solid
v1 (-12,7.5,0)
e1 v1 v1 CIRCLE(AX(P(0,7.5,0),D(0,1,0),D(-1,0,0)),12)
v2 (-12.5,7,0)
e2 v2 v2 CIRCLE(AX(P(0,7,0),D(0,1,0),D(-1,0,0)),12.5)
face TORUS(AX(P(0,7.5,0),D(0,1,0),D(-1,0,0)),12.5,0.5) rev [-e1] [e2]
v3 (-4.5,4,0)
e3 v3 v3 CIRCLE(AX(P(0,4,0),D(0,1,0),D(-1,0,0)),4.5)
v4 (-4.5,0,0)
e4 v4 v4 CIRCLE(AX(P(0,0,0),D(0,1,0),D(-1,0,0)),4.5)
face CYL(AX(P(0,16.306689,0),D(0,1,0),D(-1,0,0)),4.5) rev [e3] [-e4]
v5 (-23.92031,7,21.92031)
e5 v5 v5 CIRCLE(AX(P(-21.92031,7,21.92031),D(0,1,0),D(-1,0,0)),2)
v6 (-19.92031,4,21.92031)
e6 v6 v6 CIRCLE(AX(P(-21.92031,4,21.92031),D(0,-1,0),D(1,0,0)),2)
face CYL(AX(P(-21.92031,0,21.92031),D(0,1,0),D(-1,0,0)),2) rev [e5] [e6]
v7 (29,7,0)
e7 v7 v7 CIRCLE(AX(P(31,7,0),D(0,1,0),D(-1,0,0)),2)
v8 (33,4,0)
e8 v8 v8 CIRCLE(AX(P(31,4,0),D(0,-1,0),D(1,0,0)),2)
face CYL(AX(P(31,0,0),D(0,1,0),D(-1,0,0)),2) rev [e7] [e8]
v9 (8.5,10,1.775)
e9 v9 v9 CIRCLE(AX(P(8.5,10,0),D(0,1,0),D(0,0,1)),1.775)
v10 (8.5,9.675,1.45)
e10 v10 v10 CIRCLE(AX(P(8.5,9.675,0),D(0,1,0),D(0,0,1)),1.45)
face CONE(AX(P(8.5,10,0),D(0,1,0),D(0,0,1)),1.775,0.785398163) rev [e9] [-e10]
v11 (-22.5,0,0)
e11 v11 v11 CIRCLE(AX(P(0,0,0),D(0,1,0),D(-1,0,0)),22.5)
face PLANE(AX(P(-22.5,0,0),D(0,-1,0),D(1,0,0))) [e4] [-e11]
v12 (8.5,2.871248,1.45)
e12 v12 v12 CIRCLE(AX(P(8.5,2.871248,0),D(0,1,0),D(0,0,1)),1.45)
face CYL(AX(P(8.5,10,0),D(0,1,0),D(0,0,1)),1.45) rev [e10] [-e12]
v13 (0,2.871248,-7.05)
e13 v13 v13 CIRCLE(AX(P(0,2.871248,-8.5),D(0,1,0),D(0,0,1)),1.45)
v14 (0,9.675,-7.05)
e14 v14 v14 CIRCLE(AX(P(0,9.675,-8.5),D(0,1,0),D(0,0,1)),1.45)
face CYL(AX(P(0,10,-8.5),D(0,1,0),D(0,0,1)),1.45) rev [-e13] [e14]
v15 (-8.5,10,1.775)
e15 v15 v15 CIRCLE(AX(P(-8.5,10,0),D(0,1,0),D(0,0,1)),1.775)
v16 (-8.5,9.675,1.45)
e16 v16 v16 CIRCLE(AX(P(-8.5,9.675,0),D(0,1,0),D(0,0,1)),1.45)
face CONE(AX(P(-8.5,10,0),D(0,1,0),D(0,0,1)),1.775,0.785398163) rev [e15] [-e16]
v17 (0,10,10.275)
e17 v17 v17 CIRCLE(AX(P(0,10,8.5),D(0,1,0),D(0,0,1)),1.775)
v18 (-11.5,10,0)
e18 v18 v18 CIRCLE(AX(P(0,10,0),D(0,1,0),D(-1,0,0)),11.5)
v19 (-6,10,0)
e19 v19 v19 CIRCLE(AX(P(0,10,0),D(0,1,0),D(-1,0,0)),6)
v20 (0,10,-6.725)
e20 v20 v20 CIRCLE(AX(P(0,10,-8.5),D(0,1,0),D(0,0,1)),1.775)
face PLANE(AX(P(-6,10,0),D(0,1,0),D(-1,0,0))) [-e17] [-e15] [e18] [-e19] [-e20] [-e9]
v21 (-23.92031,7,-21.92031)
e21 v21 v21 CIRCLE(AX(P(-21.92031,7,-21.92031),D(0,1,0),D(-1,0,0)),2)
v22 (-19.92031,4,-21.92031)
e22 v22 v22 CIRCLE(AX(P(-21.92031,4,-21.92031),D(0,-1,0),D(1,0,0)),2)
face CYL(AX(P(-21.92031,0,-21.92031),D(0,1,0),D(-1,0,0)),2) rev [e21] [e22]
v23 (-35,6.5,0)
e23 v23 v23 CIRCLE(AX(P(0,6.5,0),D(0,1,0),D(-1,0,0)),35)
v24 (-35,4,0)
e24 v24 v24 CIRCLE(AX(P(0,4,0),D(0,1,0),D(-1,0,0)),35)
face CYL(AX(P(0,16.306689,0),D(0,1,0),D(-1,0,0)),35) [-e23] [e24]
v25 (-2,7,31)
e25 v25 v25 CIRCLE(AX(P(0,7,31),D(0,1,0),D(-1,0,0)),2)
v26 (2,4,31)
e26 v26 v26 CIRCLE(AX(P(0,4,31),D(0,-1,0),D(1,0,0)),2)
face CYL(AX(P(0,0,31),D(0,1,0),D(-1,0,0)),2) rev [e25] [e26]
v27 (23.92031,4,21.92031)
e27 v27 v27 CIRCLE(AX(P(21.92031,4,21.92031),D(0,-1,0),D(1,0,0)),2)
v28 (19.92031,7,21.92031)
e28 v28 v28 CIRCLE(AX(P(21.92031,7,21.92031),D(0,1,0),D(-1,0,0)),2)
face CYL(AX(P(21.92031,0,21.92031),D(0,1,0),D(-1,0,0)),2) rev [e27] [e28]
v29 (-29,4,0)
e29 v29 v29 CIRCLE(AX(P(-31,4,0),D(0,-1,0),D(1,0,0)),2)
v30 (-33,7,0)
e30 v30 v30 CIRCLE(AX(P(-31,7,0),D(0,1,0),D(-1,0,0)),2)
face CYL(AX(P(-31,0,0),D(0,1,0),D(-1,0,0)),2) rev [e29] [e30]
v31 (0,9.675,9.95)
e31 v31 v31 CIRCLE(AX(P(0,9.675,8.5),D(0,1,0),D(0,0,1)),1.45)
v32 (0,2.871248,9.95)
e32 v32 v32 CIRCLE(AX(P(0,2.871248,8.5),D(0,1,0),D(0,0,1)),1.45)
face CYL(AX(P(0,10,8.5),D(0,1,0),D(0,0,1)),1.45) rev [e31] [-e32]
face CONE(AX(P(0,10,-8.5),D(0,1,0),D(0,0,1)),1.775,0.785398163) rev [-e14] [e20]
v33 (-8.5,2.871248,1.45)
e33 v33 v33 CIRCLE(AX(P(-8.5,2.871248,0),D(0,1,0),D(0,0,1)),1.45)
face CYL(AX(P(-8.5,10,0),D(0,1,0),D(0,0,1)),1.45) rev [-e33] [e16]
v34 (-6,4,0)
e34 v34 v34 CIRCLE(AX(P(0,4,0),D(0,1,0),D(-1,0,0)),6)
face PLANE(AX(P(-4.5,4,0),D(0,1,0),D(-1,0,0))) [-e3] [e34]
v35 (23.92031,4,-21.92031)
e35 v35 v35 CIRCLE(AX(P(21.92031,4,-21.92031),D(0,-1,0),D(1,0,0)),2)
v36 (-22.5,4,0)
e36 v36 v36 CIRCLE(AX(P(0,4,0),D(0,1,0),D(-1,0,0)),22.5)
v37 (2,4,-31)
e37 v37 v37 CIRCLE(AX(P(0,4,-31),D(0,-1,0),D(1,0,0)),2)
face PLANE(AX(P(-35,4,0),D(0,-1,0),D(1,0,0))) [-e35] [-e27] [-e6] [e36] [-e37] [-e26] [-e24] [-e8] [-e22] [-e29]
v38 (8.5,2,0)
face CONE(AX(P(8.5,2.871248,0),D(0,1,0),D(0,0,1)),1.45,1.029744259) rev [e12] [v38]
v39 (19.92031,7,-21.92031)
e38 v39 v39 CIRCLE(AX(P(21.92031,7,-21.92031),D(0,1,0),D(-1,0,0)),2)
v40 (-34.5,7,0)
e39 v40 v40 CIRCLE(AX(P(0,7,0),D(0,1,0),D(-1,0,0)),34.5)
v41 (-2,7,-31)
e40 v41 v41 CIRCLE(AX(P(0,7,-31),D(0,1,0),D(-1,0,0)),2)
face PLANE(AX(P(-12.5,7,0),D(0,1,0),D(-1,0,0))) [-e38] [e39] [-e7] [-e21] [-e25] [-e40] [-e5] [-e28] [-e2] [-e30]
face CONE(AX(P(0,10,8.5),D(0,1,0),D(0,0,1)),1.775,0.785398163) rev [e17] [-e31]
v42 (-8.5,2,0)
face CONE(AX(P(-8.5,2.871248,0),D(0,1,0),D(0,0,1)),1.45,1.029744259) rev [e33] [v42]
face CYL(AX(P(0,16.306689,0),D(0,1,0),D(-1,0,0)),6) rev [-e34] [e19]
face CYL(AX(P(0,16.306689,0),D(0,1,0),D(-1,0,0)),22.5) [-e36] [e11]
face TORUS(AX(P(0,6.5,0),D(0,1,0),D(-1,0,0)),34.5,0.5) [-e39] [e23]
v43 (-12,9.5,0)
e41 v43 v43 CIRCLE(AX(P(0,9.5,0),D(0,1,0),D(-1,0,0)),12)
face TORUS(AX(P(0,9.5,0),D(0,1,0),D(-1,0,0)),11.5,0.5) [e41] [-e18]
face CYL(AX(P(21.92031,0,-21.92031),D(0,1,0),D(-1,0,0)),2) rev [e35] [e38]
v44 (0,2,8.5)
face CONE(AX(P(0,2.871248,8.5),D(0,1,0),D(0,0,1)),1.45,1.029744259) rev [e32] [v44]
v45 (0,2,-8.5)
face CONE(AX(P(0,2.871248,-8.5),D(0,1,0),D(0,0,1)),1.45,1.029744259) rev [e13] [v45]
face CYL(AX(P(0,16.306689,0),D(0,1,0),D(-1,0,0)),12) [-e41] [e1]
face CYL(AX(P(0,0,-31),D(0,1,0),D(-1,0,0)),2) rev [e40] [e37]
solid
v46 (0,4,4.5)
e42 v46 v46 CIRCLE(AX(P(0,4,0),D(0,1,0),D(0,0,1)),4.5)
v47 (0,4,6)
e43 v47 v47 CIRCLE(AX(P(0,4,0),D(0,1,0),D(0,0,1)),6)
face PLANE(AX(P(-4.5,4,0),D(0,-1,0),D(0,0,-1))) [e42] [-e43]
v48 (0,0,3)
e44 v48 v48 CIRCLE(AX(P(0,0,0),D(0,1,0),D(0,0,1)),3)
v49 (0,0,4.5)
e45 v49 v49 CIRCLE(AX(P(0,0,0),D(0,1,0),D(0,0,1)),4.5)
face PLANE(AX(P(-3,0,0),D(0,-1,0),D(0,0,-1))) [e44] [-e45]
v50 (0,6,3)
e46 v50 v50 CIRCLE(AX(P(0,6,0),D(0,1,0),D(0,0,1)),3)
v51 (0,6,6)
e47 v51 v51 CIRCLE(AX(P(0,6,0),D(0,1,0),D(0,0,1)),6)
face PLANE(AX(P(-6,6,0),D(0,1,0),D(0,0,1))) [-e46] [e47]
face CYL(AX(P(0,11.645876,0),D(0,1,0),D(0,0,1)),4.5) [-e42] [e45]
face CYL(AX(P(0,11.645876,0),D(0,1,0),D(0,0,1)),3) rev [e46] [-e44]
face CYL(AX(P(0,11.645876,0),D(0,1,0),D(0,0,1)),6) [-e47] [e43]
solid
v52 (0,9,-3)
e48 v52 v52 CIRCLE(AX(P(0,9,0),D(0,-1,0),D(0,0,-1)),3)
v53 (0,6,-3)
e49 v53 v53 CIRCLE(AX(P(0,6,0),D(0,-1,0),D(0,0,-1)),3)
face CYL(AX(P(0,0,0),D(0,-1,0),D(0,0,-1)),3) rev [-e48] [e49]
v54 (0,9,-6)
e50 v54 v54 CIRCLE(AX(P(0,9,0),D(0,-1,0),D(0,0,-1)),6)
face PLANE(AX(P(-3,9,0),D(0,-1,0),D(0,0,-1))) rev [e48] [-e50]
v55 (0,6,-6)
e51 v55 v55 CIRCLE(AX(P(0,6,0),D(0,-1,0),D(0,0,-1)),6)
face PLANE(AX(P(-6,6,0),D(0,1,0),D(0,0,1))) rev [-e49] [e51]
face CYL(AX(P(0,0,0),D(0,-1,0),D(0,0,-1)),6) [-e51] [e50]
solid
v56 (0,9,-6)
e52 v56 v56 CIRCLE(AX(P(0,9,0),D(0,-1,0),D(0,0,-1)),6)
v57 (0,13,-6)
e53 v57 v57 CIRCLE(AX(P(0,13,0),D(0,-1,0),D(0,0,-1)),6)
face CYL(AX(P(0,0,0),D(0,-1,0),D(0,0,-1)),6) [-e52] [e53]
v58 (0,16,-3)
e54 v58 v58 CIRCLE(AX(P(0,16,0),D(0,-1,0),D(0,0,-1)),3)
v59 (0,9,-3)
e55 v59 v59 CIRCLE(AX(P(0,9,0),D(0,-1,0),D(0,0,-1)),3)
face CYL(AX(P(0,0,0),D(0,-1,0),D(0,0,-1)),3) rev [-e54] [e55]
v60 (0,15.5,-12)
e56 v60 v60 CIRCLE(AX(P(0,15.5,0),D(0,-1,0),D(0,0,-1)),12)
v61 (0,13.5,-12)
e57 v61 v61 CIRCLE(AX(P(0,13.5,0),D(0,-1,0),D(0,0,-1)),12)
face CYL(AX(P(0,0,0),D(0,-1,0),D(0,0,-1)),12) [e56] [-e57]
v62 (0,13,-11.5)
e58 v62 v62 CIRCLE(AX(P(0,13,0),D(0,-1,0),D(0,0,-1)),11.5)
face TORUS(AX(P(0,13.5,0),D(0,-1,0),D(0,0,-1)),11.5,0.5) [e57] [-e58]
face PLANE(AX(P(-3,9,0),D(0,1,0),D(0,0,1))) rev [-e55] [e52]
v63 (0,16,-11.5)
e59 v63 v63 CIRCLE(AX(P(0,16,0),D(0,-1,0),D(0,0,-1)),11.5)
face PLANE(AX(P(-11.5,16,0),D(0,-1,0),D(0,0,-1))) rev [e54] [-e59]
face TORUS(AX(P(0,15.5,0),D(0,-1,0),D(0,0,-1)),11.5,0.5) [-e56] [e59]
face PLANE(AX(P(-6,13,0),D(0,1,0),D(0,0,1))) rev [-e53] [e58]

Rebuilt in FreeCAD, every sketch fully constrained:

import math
import FreeCAD as App
import Part
import Sketcher


def add_polygon(sketch, points):
    """Adds a closed chain of lines whose ends are joined by coincident constraints."""
    first, n = sketch.GeometryCount, len(points)
    for a, b in zip(points, points[1:] + points[:1]):
        sketch.addGeometry(Part.LineSegment(App.Vector(*a, 0), App.Vector(*b, 0)), False)
    for i in range(n):
        sketch.addConstraint(Sketcher.Constraint("Coincident", first + i, 2, first + (i + 1) % n, 1))

doc = App.newDocument("Part")
body = doc.addObject("PartDesign::Body", "Body")

# Sketch on XY plane
sketch1 = body.newObject("Sketcher::SketchObject", "Sketch")
sketch1.AttachmentSupport = (doc.getObject("XY_Plane"), [""])
sketch1.MapMode = "FlatFace"
sketch1.addGeometry(Part.LineSegment(App.Vector(-4.5, 0, 0), App.Vector(-4.5, 4, 0)), False)
sketch1.addGeometry(Part.LineSegment(App.Vector(-4.5, 4, 0), App.Vector(-6, 4, 0)), False)
sketch1.addGeometry(Part.LineSegment(App.Vector(-6, 4, 0), App.Vector(-6, 10, 0)), False)
sketch1.addGeometry(Part.LineSegment(App.Vector(-6, 10, 0), App.Vector(-11.5, 10, 0)), False)
sketch1.addGeometry(Part.ArcOfCircle(Part.Circle(App.Vector(-11.5, 9.5, 0), App.Vector(0, 0, 1), 0.5), math.radians(90), math.radians(180)), False)
sketch1.addGeometry(Part.LineSegment(App.Vector(-12, 9.5, 0), App.Vector(-12, 7.5, 0)), False)
sketch1.addGeometry(Part.ArcOfCircle(Part.Circle(App.Vector(-12.5, 7.5, 0), App.Vector(0, 0, 1), 0.5), math.radians(-90), math.radians(0)), False)
sketch1.addGeometry(Part.LineSegment(App.Vector(-12.5, 7, 0), App.Vector(-34.5, 7, 0)), False)
sketch1.addGeometry(Part.ArcOfCircle(Part.Circle(App.Vector(-34.5, 6.5, 0), App.Vector(0, 0, 1), 0.5), math.radians(90), math.radians(180)), False)
sketch1.addGeometry(Part.LineSegment(App.Vector(-35, 6.5, 0), App.Vector(-35, 4, 0)), False)
sketch1.addGeometry(Part.LineSegment(App.Vector(-35, 4, 0), App.Vector(-22.5, 4, 0)), False)
sketch1.addGeometry(Part.LineSegment(App.Vector(-22.5, 4, 0), App.Vector(-22.5, 0, 0)), False)
sketch1.addGeometry(Part.LineSegment(App.Vector(-22.5, 0, 0), App.Vector(-4.5, 0, 0)), False)
sketch1.addConstraint(Sketcher.Constraint("Coincident", 0, 2, 1, 1))
sketch1.addConstraint(Sketcher.Constraint("Coincident", 1, 2, 2, 1))
sketch1.addConstraint(Sketcher.Constraint("Coincident", 2, 2, 3, 1))
sketch1.addConstraint(Sketcher.Constraint("Tangent", 3, 2, 4, 1))
sketch1.addConstraint(Sketcher.Constraint("Tangent", 4, 2, 5, 1))
sketch1.addConstraint(Sketcher.Constraint("Tangent", 5, 2, 6, 2))
sketch1.addConstraint(Sketcher.Constraint("Tangent", 6, 1, 7, 1))
sketch1.addConstraint(Sketcher.Constraint("Tangent", 7, 2, 8, 1))
sketch1.addConstraint(Sketcher.Constraint("Tangent", 8, 2, 9, 1))
sketch1.addConstraint(Sketcher.Constraint("Coincident", 9, 2, 10, 1))
sketch1.addConstraint(Sketcher.Constraint("Coincident", 10, 2, 11, 1))
sketch1.addConstraint(Sketcher.Constraint("Coincident", 11, 2, 12, 1))
sketch1.addConstraint(Sketcher.Constraint("Coincident", 12, 2, 0, 1))
sketch1.addConstraint(Sketcher.Constraint("Vertical", 0))
sketch1.addConstraint(Sketcher.Constraint("Horizontal", 1))
sketch1.addConstraint(Sketcher.Constraint("Vertical", 2))
sketch1.addConstraint(Sketcher.Constraint("Horizontal", 3))
sketch1.addConstraint(Sketcher.Constraint("Vertical", 5))
sketch1.addConstraint(Sketcher.Constraint("Horizontal", 7))
sketch1.addConstraint(Sketcher.Constraint("Vertical", 9))
sketch1.addConstraint(Sketcher.Constraint("Horizontal", 10))
sketch1.addConstraint(Sketcher.Constraint("Vertical", 11))
sketch1.addConstraint(Sketcher.Constraint("Horizontal", 12))
sketch1.addConstraint(Sketcher.Constraint("Equal", 4, 6))
sketch1.addConstraint(Sketcher.Constraint("Equal", 6, 8))
sketch1.addConstraint(Sketcher.Constraint("PointOnObject", 11, 2, -1))
sketch1.addConstraint(Sketcher.Constraint("Horizontal", 1, 2, 9, 2))
sketch1.addConstraint(Sketcher.Constraint("Radius", 4, 0.5))
sketch1.addConstraint(Sketcher.Constraint("DistanceX", 7, 2, 7, 1, 22.0))
sketch1.addConstraint(Sketcher.Constraint("DistanceX", 12, 1, 12, 2, 18.0))
sketch1.addConstraint(Sketcher.Constraint("DistanceY", 0, 1, 0, 2, 4.0))
sketch1.addConstraint(Sketcher.Constraint("DistanceY", 2, 1, 2, 2, 6.0))
sketch1.addConstraint(Sketcher.Constraint("DistanceY", 5, 2, 5, 1, 2.0))
sketch1.addConstraint(Sketcher.Constraint("DistanceX", 1, 2, 1, 1, 1.5))
sketch1.addConstraint(Sketcher.Constraint("DistanceX", 3, 2, 3, 1, 5.5))
sketch1.addConstraint(Sketcher.Constraint("DistanceX", 1, 2, -1, 1, 6.0))
revolution = body.newObject("PartDesign::Revolution", "Revolution")
revolution.Profile = sketch1
revolution.ReferenceAxis = (sketch1, ["V_Axis"])
revolution.Angle = 360

# Sketch on XZ plane
sketch2 = body.newObject("Sketcher::SketchObject", "Sketch001")
sketch2.AttachmentSupport = (doc.getObject("XZ_Plane"), [""])
sketch2.MapMode = "FlatFace"
sketch2.AttachmentOffset = App.Placement(App.Vector(0, 0, -10), App.Rotation())
sketch2.addGeometry(Part.Circle(App.Vector(0, -31, 0), App.Vector(0, 0, 1), 2), False)
sketch2.addGeometry(Part.Circle(App.Vector(21.9, -21.9, 0), App.Vector(0, 0, 1), 2), False)
sketch2.addGeometry(Part.Circle(App.Vector(31, 0, 0), App.Vector(0, 0, 1), 2), False)
sketch2.addGeometry(Part.Circle(App.Vector(21.9, 21.9, 0), App.Vector(0, 0, 1), 2), False)
sketch2.addGeometry(Part.Circle(App.Vector(0, 31, 0), App.Vector(0, 0, 1), 2), False)
sketch2.addGeometry(Part.Circle(App.Vector(-21.9, 21.9, 0), App.Vector(0, 0, 1), 2), False)
sketch2.addGeometry(Part.Circle(App.Vector(-31, 0, 0), App.Vector(0, 0, 1), 2), False)
sketch2.addGeometry(Part.Circle(App.Vector(-21.9, -21.9, 0), App.Vector(0, 0, 1), 2), False)
sketch2.addConstraint(Sketcher.Constraint("Equal", 0, 1))
sketch2.addConstraint(Sketcher.Constraint("Equal", 1, 2))
sketch2.addConstraint(Sketcher.Constraint("Equal", 2, 3))
sketch2.addConstraint(Sketcher.Constraint("Equal", 3, 4))
sketch2.addConstraint(Sketcher.Constraint("Equal", 4, 5))
sketch2.addConstraint(Sketcher.Constraint("Equal", 5, 6))
sketch2.addConstraint(Sketcher.Constraint("Equal", 6, 7))
sketch2.addConstraint(Sketcher.Constraint("Symmetric", 0, 3, 4, 3, -1, 1))
sketch2.addConstraint(Sketcher.Constraint("Symmetric", 1, 3, 5, 3, -1, 1))
sketch2.addConstraint(Sketcher.Constraint("Symmetric", 2, 3, 6, 3, -1, 1))
sketch2.addConstraint(Sketcher.Constraint("Symmetric", 3, 3, 7, 3, -1, 1))
sketch2.addConstraint(Sketcher.Constraint("Symmetric", 3, 3, 5, 3, -2))
sketch2.addConstraint(Sketcher.Constraint("PointOnObject", 0, 3, -2))
sketch2.addConstraint(Sketcher.Constraint("PointOnObject", 2, 3, -1))
sketch2.addConstraint(Sketcher.Constraint("Diameter", 0, 4.0))
sketch2.addConstraint(Sketcher.Constraint("DistanceY", 0, 3, -1, 1, 31.0))
sketch2.addConstraint(Sketcher.Constraint("DistanceX", -1, 1, 2, 3, 31.0))
sketch2.addConstraint(Sketcher.Constraint("DistanceX", -1, 1, 1, 3, 21.92031))
sketch2.addConstraint(Sketcher.Constraint("DistanceY", 1, 3, -1, 1, 21.92031))
pocket1 = body.newObject("PartDesign::Pocket", "Pocket")
pocket1.Profile = sketch2
pocket1.Length = 10
pocket1.Reversed = True

# Sketch on XZ plane
sketch3 = body.newObject("Sketcher::SketchObject", "Sketch002")
sketch3.AttachmentSupport = (doc.getObject("XZ_Plane"), [""])
sketch3.MapMode = "FlatFace"
sketch3.AttachmentOffset = App.Placement(App.Vector(0, 0, -10), App.Rotation())
sketch3.addGeometry(Part.Circle(App.Vector(0, -8.5, 0), App.Vector(0, 0, 1), 1.4), False)
sketch3.addGeometry(Part.Circle(App.Vector(-8.5, 0, 0), App.Vector(0, 0, 1), 1.4), False)
sketch3.addGeometry(Part.Circle(App.Vector(8.5, 0, 0), App.Vector(0, 0, 1), 1.4), False)
sketch3.addGeometry(Part.Circle(App.Vector(0, 8.5, 0), App.Vector(0, 0, 1), 1.4), False)
sketch3.addConstraint(Sketcher.Constraint("Equal", 0, 1))
sketch3.addConstraint(Sketcher.Constraint("Equal", 1, 2))
sketch3.addConstraint(Sketcher.Constraint("Equal", 2, 3))
sketch3.addConstraint(Sketcher.Constraint("Symmetric", 1, 3, 2, 3, -1, 1))
sketch3.addConstraint(Sketcher.Constraint("Symmetric", 0, 3, 3, 3, -1, 1))
sketch3.addConstraint(Sketcher.Constraint("PointOnObject", 0, 3, -2))
sketch3.addConstraint(Sketcher.Constraint("PointOnObject", 1, 3, -1))
sketch3.addConstraint(Sketcher.Constraint("Diameter", 0, 2.9))
sketch3.addConstraint(Sketcher.Constraint("DistanceX", 1, 3, 2, 3, 17.0))
sketch3.addConstraint(Sketcher.Constraint("DistanceY", 0, 3, 3, 3, 17.0))
doc.recompute()
hole = body.newObject("PartDesign::Hole", "Hole")
hole.Profile = sketch3
hole.ThreadType = "None"
hole.Diameter = 2.9
hole.DepthType = "Dimension"
hole.Depth = 7.128752
hole.DrillPoint = "Angled"
hole.DrillPointAngle = 118
hole.HoleCutType = "Countersink"
hole.HoleCutDiameter = 3.55
hole.HoleCutCountersinkAngle = 90
hole.Reversed = True
body2 = doc.addObject("PartDesign::Body", "Body001")

# Sketch on XY plane
sketch4 = body2.newObject("Sketcher::SketchObject", "Sketch003")
sketch4.AttachmentSupport = (doc.getObject("XY_Plane001"), [""])
sketch4.MapMode = "FlatFace"
add_polygon(sketch4, [(-4.5, 0), (-3, 0), (-3, 6), (-6, 6), (-6, 4), (-4.5, 4)])  # lines 0-5
sketch4.addConstraint(Sketcher.Constraint("Horizontal", 0))
sketch4.addConstraint(Sketcher.Constraint("Vertical", 1))
sketch4.addConstraint(Sketcher.Constraint("Horizontal", 2))
sketch4.addConstraint(Sketcher.Constraint("Vertical", 3))
sketch4.addConstraint(Sketcher.Constraint("Horizontal", 4))
sketch4.addConstraint(Sketcher.Constraint("Vertical", 5))
sketch4.addConstraint(Sketcher.Constraint("PointOnObject", 0, 2, -1))
sketch4.addConstraint(Sketcher.Constraint("Equal", 0, 4))
sketch4.addConstraint(Sketcher.Constraint("DistanceX", 2, 2, 2, 1, 3.0))
sketch4.addConstraint(Sketcher.Constraint("DistanceY", 1, 1, 1, 2, 6.0))
sketch4.addConstraint(Sketcher.Constraint("DistanceY", 3, 2, 3, 1, 2.0))
sketch4.addConstraint(Sketcher.Constraint("DistanceX", 0, 2, -1, 1, 3.0))
revolution2 = body2.newObject("PartDesign::Revolution", "Revolution001")
revolution2.Profile = sketch4
revolution2.ReferenceAxis = (sketch4, ["V_Axis"])
revolution2.Angle = 360
body3 = doc.addObject("PartDesign::Body", "Body002")

# Sketch on XY plane
sketch5 = body3.newObject("Sketcher::SketchObject", "Sketch004")
sketch5.AttachmentSupport = (doc.getObject("XY_Plane002"), [""])
sketch5.MapMode = "FlatFace"
add_polygon(sketch5, [(-6, 9), (-6, 6), (-3, 6), (-3, 9)])  # lines 0-3
sketch5.addConstraint(Sketcher.Constraint("Vertical", 0))
sketch5.addConstraint(Sketcher.Constraint("Horizontal", 1))
sketch5.addConstraint(Sketcher.Constraint("Vertical", 2))
sketch5.addConstraint(Sketcher.Constraint("Horizontal", 3))
sketch5.addConstraint(Sketcher.Constraint("Equal", 3, 0))
sketch5.addConstraint(Sketcher.Constraint("DistanceX", 1, 1, 1, 2, 3.0))
sketch5.addConstraint(Sketcher.Constraint("DistanceX", 0, 2, -1, 1, 6.0))
sketch5.addConstraint(Sketcher.Constraint("DistanceY", -1, 1, 0, 2, 6.0))
revolution3 = body3.newObject("PartDesign::Revolution", "Revolution002")
revolution3.Profile = sketch5
revolution3.ReferenceAxis = (sketch5, ["V_Axis"])
revolution3.Angle = 360
body4 = doc.addObject("PartDesign::Body", "Body003")

# Sketch on XY plane
sketch6 = body4.newObject("Sketcher::SketchObject", "Sketch005")
sketch6.AttachmentSupport = (doc.getObject("XY_Plane003"), [""])
sketch6.MapMode = "FlatFace"
sketch6.addGeometry(Part.LineSegment(App.Vector(-11.5, 13, 0), App.Vector(-6, 13, 0)), False)
sketch6.addGeometry(Part.LineSegment(App.Vector(-6, 13, 0), App.Vector(-6, 9, 0)), False)
sketch6.addGeometry(Part.LineSegment(App.Vector(-6, 9, 0), App.Vector(-3, 9, 0)), False)
sketch6.addGeometry(Part.LineSegment(App.Vector(-3, 9, 0), App.Vector(-3, 16, 0)), False)
sketch6.addGeometry(Part.LineSegment(App.Vector(-3, 16, 0), App.Vector(-11.5, 16, 0)), False)
sketch6.addGeometry(Part.ArcOfCircle(Part.Circle(App.Vector(-11.5, 15.5, 0), App.Vector(0, 0, 1), 0.5), math.radians(90), math.radians(180)), False)
sketch6.addGeometry(Part.LineSegment(App.Vector(-12, 15.5, 0), App.Vector(-12, 13.5, 0)), False)
sketch6.addGeometry(Part.ArcOfCircle(Part.Circle(App.Vector(-11.5, 13.5, 0), App.Vector(0, 0, 1), 0.5), math.radians(180), math.radians(270)), False)
sketch6.addConstraint(Sketcher.Constraint("Coincident", 0, 2, 1, 1))
sketch6.addConstraint(Sketcher.Constraint("Coincident", 1, 2, 2, 1))
sketch6.addConstraint(Sketcher.Constraint("Coincident", 2, 2, 3, 1))
sketch6.addConstraint(Sketcher.Constraint("Coincident", 3, 2, 4, 1))
sketch6.addConstraint(Sketcher.Constraint("Tangent", 4, 2, 5, 1))
sketch6.addConstraint(Sketcher.Constraint("Tangent", 5, 2, 6, 1))
sketch6.addConstraint(Sketcher.Constraint("Tangent", 6, 2, 7, 1))
sketch6.addConstraint(Sketcher.Constraint("Tangent", 7, 2, 0, 1))
sketch6.addConstraint(Sketcher.Constraint("Horizontal", 0))
sketch6.addConstraint(Sketcher.Constraint("Vertical", 1))
sketch6.addConstraint(Sketcher.Constraint("Horizontal", 2))
sketch6.addConstraint(Sketcher.Constraint("Vertical", 3))
sketch6.addConstraint(Sketcher.Constraint("Horizontal", 4))
sketch6.addConstraint(Sketcher.Constraint("Vertical", 6))
sketch6.addConstraint(Sketcher.Constraint("Equal", 5, 7))
sketch6.addConstraint(Sketcher.Constraint("Radius", 5, 0.5))
sketch6.addConstraint(Sketcher.Constraint("DistanceX", 2, 1, 2, 2, 3.0))
sketch6.addConstraint(Sketcher.Constraint("DistanceY", 1, 2, 1, 1, 4.0))
sketch6.addConstraint(Sketcher.Constraint("DistanceY", 3, 1, 3, 2, 7.0))
sketch6.addConstraint(Sketcher.Constraint("DistanceX", 0, 1, 0, 2, 5.5))
sketch6.addConstraint(Sketcher.Constraint("DistanceX", 0, 2, -1, 1, 6.0))
sketch6.addConstraint(Sketcher.Constraint("DistanceY", -1, 1, 0, 2, 13.0))
revolution4 = body4.newObject("PartDesign::Revolution", "Revolution003")
revolution4.Profile = sketch6
revolution4.ReferenceAxis = (sketch6, ["V_Axis"])
revolution4.Angle = 360

doc.recompute()
